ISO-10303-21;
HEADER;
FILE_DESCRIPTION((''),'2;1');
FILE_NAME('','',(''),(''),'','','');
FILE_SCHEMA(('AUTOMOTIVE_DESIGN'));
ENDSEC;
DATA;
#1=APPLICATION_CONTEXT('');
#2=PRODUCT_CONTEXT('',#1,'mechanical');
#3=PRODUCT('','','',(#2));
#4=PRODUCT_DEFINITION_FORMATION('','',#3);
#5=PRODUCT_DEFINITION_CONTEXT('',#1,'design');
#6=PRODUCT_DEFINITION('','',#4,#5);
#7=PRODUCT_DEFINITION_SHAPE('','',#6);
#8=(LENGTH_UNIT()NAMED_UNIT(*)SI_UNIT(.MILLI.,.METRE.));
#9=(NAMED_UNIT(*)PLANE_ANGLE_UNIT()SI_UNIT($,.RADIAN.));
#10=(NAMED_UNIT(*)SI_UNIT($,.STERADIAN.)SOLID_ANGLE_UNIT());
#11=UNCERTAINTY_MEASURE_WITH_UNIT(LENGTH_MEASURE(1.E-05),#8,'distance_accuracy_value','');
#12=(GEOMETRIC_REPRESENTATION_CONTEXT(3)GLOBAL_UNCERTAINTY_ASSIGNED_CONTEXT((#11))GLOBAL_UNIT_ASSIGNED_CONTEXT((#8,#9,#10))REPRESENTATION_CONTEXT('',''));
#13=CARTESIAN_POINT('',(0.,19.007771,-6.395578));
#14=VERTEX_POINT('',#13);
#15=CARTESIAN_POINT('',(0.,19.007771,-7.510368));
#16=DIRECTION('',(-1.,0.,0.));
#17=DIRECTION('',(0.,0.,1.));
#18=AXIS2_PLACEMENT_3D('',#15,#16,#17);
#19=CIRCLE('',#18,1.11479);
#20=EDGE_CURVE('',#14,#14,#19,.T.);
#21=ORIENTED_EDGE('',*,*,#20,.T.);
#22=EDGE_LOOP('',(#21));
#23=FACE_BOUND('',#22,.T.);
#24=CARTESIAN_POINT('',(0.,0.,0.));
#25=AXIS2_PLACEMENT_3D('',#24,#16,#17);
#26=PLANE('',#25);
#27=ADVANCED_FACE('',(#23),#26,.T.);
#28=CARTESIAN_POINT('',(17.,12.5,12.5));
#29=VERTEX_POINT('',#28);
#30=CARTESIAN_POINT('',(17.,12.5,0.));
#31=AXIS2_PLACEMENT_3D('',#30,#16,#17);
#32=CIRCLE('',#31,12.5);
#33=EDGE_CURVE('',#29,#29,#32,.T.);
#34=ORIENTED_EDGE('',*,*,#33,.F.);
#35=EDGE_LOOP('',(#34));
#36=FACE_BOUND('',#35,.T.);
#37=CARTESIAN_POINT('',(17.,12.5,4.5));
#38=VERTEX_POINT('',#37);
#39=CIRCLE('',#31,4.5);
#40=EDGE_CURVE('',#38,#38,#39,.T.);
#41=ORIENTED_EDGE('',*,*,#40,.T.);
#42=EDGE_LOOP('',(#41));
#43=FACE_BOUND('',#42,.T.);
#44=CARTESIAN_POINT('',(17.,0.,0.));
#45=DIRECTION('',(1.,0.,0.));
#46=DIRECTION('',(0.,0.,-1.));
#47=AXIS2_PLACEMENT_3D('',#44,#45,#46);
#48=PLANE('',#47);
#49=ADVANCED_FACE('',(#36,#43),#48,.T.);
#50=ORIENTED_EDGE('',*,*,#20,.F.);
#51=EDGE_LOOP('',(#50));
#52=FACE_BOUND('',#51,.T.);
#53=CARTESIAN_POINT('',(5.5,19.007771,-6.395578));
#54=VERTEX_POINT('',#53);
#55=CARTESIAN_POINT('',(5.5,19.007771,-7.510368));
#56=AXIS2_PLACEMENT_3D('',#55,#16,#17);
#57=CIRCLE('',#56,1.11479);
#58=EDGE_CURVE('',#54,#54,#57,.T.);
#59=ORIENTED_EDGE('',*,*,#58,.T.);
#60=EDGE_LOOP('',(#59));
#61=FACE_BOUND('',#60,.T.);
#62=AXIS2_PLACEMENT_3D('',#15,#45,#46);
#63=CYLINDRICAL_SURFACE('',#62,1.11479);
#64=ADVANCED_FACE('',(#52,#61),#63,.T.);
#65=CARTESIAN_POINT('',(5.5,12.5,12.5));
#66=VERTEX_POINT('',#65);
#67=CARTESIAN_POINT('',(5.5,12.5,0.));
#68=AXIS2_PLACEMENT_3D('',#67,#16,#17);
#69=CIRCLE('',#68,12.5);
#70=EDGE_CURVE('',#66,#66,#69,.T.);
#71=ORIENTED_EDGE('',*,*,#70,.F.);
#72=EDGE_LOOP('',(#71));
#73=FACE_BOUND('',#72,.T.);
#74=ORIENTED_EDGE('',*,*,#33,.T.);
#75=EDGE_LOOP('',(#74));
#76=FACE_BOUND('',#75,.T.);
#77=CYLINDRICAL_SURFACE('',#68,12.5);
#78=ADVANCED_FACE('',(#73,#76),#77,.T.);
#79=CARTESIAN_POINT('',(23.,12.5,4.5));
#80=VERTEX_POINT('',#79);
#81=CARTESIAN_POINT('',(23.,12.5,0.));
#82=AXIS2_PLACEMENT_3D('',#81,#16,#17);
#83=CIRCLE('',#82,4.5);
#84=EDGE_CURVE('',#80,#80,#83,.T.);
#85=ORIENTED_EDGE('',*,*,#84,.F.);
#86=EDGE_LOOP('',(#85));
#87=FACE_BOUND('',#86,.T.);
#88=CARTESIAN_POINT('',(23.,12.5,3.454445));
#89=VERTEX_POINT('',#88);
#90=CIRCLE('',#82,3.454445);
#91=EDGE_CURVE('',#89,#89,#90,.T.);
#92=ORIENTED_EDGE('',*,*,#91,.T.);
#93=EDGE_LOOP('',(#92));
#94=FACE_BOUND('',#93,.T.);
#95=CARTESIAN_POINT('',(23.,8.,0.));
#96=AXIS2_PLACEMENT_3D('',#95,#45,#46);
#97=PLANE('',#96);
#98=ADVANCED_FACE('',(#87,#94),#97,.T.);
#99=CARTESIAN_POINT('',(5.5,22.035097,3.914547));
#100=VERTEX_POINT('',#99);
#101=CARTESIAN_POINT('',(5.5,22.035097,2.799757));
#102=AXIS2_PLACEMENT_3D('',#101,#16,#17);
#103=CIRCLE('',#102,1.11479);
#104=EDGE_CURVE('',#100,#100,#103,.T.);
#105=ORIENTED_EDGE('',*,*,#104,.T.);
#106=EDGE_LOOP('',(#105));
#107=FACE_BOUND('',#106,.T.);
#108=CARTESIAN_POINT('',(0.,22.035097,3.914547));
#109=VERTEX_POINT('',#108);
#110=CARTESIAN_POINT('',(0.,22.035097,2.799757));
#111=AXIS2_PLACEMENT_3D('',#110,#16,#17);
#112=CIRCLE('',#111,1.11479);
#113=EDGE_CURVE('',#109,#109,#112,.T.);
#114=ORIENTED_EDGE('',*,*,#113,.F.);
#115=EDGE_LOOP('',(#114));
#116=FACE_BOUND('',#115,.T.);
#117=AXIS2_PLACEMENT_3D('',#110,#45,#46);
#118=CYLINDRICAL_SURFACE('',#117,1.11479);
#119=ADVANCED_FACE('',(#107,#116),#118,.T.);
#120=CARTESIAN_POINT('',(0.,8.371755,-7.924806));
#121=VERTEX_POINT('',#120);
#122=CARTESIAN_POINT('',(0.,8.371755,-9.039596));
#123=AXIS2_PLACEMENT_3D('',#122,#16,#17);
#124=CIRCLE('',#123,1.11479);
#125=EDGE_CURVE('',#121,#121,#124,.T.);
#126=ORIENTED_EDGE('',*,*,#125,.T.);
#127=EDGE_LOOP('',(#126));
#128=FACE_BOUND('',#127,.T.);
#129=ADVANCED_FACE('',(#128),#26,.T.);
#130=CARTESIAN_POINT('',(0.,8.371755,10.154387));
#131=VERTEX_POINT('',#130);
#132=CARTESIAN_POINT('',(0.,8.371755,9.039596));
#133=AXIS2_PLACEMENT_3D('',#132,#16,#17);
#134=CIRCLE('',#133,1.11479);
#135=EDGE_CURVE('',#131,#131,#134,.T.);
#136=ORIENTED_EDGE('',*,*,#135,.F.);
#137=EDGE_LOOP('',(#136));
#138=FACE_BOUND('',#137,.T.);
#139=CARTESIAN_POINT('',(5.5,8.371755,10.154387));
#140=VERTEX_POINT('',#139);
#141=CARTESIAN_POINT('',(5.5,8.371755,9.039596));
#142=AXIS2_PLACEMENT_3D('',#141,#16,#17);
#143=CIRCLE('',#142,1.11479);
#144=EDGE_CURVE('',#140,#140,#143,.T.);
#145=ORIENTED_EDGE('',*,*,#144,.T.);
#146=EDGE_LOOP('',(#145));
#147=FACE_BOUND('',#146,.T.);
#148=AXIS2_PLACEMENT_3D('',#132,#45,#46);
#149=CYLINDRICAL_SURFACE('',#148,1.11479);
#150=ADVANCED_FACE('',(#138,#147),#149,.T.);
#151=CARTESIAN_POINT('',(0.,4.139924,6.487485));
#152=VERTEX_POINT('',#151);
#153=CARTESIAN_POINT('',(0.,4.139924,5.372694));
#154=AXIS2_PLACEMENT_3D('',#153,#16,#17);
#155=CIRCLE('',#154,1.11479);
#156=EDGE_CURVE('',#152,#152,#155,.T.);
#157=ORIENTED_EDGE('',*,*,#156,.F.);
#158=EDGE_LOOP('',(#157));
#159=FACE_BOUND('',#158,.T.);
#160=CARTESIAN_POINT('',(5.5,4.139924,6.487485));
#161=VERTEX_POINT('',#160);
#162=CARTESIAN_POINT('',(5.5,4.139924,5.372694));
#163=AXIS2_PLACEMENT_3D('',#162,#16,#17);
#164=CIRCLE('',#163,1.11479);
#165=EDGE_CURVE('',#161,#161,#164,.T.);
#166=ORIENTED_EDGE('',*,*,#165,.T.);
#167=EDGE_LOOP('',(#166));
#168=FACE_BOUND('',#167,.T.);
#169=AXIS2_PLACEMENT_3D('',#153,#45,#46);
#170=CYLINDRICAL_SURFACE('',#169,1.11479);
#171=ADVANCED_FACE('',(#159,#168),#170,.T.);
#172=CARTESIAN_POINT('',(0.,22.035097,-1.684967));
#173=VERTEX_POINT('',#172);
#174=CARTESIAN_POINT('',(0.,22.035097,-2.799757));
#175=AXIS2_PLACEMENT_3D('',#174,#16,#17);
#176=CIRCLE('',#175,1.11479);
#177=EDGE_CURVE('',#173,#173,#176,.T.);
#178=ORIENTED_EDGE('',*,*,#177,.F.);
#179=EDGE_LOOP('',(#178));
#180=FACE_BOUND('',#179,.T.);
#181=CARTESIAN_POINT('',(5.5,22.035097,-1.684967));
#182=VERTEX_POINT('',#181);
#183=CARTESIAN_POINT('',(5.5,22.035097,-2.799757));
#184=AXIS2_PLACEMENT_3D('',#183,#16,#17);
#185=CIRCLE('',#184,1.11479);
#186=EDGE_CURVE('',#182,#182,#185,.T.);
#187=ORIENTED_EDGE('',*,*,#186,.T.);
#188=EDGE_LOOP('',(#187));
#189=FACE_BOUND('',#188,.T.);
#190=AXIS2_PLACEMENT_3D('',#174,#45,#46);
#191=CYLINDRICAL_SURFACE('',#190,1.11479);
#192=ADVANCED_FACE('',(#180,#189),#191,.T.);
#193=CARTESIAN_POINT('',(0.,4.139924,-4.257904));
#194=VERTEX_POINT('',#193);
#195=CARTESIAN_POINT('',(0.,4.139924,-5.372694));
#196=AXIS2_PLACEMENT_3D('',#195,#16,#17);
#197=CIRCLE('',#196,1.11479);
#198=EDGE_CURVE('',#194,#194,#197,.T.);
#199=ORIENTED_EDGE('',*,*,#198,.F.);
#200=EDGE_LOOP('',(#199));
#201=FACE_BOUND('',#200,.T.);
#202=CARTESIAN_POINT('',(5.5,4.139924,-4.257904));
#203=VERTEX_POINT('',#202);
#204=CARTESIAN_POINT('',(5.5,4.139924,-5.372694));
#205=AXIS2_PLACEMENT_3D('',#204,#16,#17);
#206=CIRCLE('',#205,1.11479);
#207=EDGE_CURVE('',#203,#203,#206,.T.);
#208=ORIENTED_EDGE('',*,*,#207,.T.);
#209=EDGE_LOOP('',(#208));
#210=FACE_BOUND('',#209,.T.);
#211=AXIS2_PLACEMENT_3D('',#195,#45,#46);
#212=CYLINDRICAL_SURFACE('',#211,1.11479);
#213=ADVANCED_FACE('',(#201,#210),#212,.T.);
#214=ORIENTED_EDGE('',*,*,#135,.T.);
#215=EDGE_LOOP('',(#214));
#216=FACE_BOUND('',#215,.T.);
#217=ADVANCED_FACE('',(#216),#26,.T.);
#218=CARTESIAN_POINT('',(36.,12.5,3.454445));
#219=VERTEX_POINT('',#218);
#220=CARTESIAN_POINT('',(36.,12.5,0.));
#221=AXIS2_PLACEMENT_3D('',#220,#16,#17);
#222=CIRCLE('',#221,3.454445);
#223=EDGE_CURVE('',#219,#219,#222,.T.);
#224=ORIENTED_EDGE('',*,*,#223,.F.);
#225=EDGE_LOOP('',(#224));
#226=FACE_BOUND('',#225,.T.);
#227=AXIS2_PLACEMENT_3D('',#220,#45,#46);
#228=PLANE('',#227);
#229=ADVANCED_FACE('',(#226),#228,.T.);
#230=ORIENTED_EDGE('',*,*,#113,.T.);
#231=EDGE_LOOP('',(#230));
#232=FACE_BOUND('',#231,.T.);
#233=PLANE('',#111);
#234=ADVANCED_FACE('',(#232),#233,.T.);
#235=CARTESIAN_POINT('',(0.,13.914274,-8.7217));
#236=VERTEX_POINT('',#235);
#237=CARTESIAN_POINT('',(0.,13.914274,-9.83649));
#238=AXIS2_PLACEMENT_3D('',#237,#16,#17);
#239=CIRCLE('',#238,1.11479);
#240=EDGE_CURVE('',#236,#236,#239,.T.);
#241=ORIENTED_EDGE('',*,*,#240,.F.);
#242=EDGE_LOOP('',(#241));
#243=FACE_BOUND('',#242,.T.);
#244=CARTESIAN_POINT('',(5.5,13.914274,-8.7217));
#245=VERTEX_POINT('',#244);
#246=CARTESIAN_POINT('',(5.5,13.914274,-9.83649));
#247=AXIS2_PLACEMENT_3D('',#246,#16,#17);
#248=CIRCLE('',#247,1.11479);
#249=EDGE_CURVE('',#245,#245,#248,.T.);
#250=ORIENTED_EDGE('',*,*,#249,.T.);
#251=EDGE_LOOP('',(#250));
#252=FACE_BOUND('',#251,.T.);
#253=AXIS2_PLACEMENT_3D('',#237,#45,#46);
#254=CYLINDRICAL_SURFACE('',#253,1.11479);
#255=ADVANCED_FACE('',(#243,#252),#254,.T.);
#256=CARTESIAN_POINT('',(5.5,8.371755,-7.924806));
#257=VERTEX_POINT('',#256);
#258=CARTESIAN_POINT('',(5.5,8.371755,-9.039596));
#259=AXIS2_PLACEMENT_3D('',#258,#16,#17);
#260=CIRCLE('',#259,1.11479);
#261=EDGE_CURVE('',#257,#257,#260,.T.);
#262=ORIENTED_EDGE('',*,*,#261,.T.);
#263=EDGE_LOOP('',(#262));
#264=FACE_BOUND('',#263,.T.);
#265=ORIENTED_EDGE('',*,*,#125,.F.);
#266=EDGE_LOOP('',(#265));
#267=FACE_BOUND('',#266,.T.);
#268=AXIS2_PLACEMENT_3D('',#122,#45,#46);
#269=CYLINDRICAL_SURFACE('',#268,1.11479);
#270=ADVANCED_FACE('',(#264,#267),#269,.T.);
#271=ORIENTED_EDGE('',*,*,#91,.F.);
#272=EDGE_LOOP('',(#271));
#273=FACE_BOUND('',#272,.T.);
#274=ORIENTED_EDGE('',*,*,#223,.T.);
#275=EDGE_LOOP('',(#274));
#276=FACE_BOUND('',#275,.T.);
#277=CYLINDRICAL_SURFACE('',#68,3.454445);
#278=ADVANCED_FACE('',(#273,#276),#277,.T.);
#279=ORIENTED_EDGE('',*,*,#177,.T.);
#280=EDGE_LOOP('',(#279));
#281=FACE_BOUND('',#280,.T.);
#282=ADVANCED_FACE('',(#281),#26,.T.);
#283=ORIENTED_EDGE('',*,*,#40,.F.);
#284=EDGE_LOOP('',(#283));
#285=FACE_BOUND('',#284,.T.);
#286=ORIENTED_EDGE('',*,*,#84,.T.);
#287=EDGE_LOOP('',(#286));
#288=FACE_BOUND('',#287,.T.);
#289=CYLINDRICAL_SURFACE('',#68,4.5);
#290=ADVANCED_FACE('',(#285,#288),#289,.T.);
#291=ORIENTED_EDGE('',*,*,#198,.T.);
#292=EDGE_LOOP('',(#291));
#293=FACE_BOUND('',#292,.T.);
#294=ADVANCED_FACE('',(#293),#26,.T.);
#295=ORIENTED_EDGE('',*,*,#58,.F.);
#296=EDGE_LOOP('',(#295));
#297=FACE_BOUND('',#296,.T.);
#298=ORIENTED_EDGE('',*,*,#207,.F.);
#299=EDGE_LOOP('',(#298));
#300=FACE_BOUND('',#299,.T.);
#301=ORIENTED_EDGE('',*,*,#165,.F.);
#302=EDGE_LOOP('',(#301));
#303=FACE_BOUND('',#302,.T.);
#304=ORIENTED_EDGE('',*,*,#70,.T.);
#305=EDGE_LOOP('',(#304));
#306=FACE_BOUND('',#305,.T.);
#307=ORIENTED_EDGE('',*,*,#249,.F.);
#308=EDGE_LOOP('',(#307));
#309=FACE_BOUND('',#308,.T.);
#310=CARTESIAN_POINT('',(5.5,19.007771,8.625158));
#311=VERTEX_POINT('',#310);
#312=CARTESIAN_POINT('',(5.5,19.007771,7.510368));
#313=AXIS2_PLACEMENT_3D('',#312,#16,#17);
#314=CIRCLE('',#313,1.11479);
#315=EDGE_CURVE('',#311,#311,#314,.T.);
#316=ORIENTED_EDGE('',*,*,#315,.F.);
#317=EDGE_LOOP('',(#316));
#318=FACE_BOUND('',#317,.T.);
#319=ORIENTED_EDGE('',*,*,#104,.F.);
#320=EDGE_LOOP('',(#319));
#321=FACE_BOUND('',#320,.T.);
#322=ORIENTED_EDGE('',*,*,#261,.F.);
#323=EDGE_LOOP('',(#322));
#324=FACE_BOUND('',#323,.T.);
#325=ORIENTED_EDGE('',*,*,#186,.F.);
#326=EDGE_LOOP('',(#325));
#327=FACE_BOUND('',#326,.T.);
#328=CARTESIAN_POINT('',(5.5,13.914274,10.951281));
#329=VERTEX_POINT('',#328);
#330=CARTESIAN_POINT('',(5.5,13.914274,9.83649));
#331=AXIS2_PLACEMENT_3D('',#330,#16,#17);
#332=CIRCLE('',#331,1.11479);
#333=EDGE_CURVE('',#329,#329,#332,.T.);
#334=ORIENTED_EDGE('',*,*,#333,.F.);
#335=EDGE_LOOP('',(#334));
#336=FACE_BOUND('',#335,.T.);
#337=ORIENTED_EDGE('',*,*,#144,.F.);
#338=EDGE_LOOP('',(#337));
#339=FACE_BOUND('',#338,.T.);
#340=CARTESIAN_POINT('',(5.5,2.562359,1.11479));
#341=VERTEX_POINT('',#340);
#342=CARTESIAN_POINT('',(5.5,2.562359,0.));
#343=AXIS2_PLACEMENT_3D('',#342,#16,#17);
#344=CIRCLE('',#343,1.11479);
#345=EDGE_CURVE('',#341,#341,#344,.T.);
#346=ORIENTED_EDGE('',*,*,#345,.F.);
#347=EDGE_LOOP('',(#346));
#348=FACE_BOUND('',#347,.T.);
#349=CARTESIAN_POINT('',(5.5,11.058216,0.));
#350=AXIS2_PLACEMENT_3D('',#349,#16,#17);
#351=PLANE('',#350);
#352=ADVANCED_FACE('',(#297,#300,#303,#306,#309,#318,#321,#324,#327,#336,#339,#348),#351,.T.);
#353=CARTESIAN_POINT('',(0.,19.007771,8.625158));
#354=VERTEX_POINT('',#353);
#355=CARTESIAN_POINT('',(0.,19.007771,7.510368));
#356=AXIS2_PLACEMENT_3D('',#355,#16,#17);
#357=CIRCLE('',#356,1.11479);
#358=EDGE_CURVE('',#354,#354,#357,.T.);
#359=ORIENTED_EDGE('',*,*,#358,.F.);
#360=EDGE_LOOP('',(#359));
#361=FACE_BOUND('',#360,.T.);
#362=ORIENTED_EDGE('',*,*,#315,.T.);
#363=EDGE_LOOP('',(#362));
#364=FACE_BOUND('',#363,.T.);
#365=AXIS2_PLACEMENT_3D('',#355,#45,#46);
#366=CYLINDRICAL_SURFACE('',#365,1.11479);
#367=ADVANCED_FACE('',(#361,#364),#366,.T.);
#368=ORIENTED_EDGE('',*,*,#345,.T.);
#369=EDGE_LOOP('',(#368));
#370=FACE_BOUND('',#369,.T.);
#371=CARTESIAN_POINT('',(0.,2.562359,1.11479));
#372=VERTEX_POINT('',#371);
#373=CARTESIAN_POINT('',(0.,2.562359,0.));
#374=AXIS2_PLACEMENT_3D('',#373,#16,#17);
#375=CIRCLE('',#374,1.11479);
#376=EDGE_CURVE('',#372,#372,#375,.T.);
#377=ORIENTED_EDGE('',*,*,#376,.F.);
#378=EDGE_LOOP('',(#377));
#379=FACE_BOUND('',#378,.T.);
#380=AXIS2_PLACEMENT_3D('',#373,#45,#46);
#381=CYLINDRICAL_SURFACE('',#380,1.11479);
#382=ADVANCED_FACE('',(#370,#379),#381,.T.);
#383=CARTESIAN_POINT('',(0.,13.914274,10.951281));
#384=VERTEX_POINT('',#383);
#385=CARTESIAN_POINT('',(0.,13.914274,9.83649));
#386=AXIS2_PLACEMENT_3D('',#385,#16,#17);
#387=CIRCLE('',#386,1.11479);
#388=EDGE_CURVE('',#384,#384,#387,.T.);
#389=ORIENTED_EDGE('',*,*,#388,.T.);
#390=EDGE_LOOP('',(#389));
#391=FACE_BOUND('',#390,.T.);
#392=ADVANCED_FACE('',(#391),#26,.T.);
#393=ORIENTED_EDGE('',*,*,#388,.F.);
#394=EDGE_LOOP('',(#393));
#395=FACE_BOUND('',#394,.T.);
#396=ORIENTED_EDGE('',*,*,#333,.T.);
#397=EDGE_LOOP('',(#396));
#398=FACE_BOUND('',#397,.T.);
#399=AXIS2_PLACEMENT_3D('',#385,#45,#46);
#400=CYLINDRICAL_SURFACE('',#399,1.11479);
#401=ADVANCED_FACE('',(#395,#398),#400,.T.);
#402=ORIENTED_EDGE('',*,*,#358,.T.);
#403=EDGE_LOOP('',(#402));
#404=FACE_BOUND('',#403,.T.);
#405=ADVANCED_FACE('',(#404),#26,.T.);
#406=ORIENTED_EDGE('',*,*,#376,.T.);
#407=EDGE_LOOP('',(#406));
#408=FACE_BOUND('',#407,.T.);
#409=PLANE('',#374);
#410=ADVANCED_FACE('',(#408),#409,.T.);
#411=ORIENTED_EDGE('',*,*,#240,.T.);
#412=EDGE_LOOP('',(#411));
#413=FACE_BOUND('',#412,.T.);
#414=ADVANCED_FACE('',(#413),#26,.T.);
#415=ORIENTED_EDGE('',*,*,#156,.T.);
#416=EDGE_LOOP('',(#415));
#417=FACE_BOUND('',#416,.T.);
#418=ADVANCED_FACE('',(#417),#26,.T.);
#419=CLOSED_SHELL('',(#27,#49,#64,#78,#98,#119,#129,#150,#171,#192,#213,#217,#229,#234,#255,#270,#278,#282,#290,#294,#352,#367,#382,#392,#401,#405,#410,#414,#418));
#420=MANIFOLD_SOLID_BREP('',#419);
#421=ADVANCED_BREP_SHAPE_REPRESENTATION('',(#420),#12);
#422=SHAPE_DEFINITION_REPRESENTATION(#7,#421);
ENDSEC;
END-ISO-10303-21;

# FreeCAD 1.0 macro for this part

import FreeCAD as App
import Part
import Sketcher

V = App.Vector

doc = App.newDocument("Part")
body = doc.addObject("PartDesign::Body", "Body")

sketch1 = doc.addObject("Sketcher::SketchObject", "Sketch")
body.addObject(sketch1)
sketch1.AttachmentSupport = (doc.XY_Plane, [""])
sketch1.MapMode = "FlatFace"
sketch1.addGeometry(Part.LineSegment(V(5.5, 0, 0), V(17, 0, 0)), False)
sketch1.addGeometry(Part.LineSegment(V(17, 0, 0), V(17, 8, 0)), False)
sketch1.addGeometry(Part.LineSegment(V(17, 8, 0), V(23, 8, 0)), False)
sketch1.addGeometry(Part.LineSegment(V(23, 8, 0), V(23, 9, 0)), False)
sketch1.addGeometry(Part.LineSegment(V(23, 9, 0), V(36, 9, 0)), False)
sketch1.addGeometry(Part.LineSegment(V(36, 9, 0), V(36, 12.5, 0)), False)
sketch1.addGeometry(Part.LineSegment(V(36, 12.5, 0), V(5.5, 12.5, 0)), False)
sketch1.addGeometry(Part.LineSegment(V(5.5, 12.5, 0), V(5.5, 0, 0)), False)
sketch1.addGeometry(Part.LineSegment(V(5.5, 12.5, 0), V(36, 12.5, 0)), True)
sketch1.addConstraint(Sketcher.Constraint("Coincident", 0, 2, 1, 1))
sketch1.addConstraint(Sketcher.Constraint("Coincident", 1, 2, 2, 1))
sketch1.addConstraint(Sketcher.Constraint("Coincident", 2, 2, 3, 1))
sketch1.addConstraint(Sketcher.Constraint("Coincident", 3, 2, 4, 1))
sketch1.addConstraint(Sketcher.Constraint("Coincident", 4, 2, 5, 1))
sketch1.addConstraint(Sketcher.Constraint("Coincident", 5, 2, 6, 1))
sketch1.addConstraint(Sketcher.Constraint("Coincident", 6, 2, 7, 1))
sketch1.addConstraint(Sketcher.Constraint("Coincident", 7, 2, 0, 1))
sketch1.addConstraint(Sketcher.Constraint("Horizontal", 0))
sketch1.addConstraint(Sketcher.Constraint("Vertical", 1))
sketch1.addConstraint(Sketcher.Constraint("Horizontal", 2))
sketch1.addConstraint(Sketcher.Constraint("Vertical", 3))
sketch1.addConstraint(Sketcher.Constraint("Horizontal", 4))
sketch1.addConstraint(Sketcher.Constraint("Vertical", 5))
sketch1.addConstraint(Sketcher.Constraint("Horizontal", 6))
sketch1.addConstraint(Sketcher.Constraint("Vertical", 7))
sketch1.addConstraint(Sketcher.Constraint("Horizontal", 8))
sketch1.addConstraint(Sketcher.Constraint("Coincident", 8, 1, 6, 2))
sketch1.addConstraint(Sketcher.Constraint("PointOnObject", 0, 2, -1))
sketch1.addConstraint(Sketcher.Constraint("Vertical", 4, 2, 8, 2))
sketch1.addConstraint(Sketcher.Constraint("DistanceX", 2, 1, 2, 2, 6.0))
sketch1.addConstraint(Sketcher.Constraint("DistanceX", 4, 1, 4, 2, 13.0))
sketch1.addConstraint(Sketcher.Constraint("DistanceY", 1, 1, 1, 2, 8.0))
sketch1.addConstraint(Sketcher.Constraint("DistanceX", 0, 1, 0, 2, 11.5))
sketch1.addConstraint(Sketcher.Constraint("DistanceY", 7, 2, 7, 1, 12.5))
sketch1.addConstraint(Sketcher.Constraint("DistanceX", -1, 1, 0, 2, 17.0))
sketch1.addConstraint(Sketcher.Constraint("DistanceY", 3, 1, 3, 2, 1.045555))
revolution = doc.addObject("PartDesign::Revolution", "Revolution")
body.addObject(revolution)
revolution.Profile = sketch1
revolution.ReferenceAxis = (sketch1, ["Axis0"])
revolution.Angle = 360

sketch2 = doc.addObject("Sketcher::SketchObject", "Sketch001")
body.addObject(sketch2)
sketch2.AttachmentSupport = (doc.YZ_Plane, [""])
sketch2.MapMode = "FlatFace"
sketch2.AttachmentOffset = App.Placement(V(0, 0, 5.5), App.Rotation())
sketch2.addGeometry(Part.Circle(V(4.1, -5.4, 0), V(0, 0, 1), 1.1), False)
sketch2.addGeometry(Part.Circle(V(4.1, 5.4, 0), V(0, 0, 1), 1.1), False)
sketch2.addGeometry(Part.Circle(V(8.4, 9, 0), V(0, 0, 1), 1.1), False)
sketch2.addGeometry(Part.Circle(V(13.9, 9.8, 0), V(0, 0, 1), 1.1), False)
sketch2.addGeometry(Part.Circle(V(19, 7.5, 0), V(0, 0, 1), 1.1), False)
sketch2.addGeometry(Part.Circle(V(22, -2.8, 0), V(0, 0, 1), 1.1), False)
sketch2.addGeometry(Part.Circle(V(19, -7.5, 0), V(0, 0, 1), 1.1), False)
sketch2.addGeometry(Part.Circle(V(13.9, -9.8, 0), V(0, 0, 1), 1.1), False)
sketch2.addGeometry(Part.Circle(V(8.4, -9, 0), V(0, 0, 1), 1.1), False)
sketch2.addGeometry(Part.Circle(V(2.6, 0, 0), V(0, 0, 1), 1.1), False)
sketch2.addGeometry(Part.Circle(V(22, 2.8, 0), V(0, 0, 1), 1.1), False)
sketch2.addConstraint(Sketcher.Constraint("Equal", 0, 1))
sketch2.addConstraint(Sketcher.Constraint("Equal", 1, 2))
sketch2.addConstraint(Sketcher.Constraint("Equal", 2, 3))
sketch2.addConstraint(Sketcher.Constraint("Equal", 3, 4))
sketch2.addConstraint(Sketcher.Constraint("Equal", 4, 5))
sketch2.addConstraint(Sketcher.Constraint("Equal", 5, 6))
sketch2.addConstraint(Sketcher.Constraint("Equal", 6, 7))
sketch2.addConstraint(Sketcher.Constraint("Equal", 7, 8))
sketch2.addConstraint(Sketcher.Constraint("Equal", 8, 9))
sketch2.addConstraint(Sketcher.Constraint("Equal", 9, 10))
sketch2.addConstraint(Sketcher.Constraint("Symmetric", 0, 3, 1, 3, -1))
sketch2.addConstraint(Sketcher.Constraint("Symmetric", 4, 3, 6, 3, -1))
sketch2.addConstraint(Sketcher.Constraint("Symmetric", 3, 3, 7, 3, -1))
sketch2.addConstraint(Sketcher.Constraint("Symmetric", 2, 3, 8, 3, -1))
sketch2.addConstraint(Sketcher.Constraint("Symmetric", 5, 3, 10, 3, -1))
sketch2.addConstraint(Sketcher.Constraint("PointOnObject", 9, 3, -1))
sketch2.addConstraint(Sketcher.Constraint("Diameter", 0, 2.229581))
sketch2.addConstraint(Sketcher.Constraint("DistanceY", 1, 3, 2, 3, 3.666902))
sketch2.addConstraint(Sketcher.Constraint("DistanceY", -1, 1, 3, 3, 9.83649))
sketch2.addConstraint(Sketcher.Constraint("DistanceX", -1, 1, 4, 3, 19.007771))
sketch2.addConstraint(Sketcher.Constraint("DistanceY", -1, 1, 4, 3, 7.510368))
sketch2.addConstraint(Sketcher.Constraint("DistanceX", -1, 1, 9, 3, 2.562359))
sketch2.addConstraint(Sketcher.Constraint("DistanceY", 0, 3, 1, 3, 10.745389))
sketch2.addConstraint(Sketcher.Constraint("DistanceX", 1, 3, 2, 3, 4.23183))
sketch2.addConstraint(Sketcher.Constraint("DistanceX", 2, 3, 3, 3, 5.542519))
sketch2.addConstraint(Sketcher.Constraint("DistanceY", 5, 3, 1, 3, 8.172452))
sketch2.addConstraint(Sketcher.Constraint("DistanceX", -1, 1, 0, 3, 4.139924))
sketch2.addConstraint(Sketcher.Constraint("DistanceX", -1, 1, 5, 3, 22.035097))
pad1 = doc.addObject("PartDesign::Pad", "Pad")
body.addObject(pad1)
pad1.Profile = sketch2
pad1.Length = 5.5
pad1.Reversed = True

doc.recompute()
